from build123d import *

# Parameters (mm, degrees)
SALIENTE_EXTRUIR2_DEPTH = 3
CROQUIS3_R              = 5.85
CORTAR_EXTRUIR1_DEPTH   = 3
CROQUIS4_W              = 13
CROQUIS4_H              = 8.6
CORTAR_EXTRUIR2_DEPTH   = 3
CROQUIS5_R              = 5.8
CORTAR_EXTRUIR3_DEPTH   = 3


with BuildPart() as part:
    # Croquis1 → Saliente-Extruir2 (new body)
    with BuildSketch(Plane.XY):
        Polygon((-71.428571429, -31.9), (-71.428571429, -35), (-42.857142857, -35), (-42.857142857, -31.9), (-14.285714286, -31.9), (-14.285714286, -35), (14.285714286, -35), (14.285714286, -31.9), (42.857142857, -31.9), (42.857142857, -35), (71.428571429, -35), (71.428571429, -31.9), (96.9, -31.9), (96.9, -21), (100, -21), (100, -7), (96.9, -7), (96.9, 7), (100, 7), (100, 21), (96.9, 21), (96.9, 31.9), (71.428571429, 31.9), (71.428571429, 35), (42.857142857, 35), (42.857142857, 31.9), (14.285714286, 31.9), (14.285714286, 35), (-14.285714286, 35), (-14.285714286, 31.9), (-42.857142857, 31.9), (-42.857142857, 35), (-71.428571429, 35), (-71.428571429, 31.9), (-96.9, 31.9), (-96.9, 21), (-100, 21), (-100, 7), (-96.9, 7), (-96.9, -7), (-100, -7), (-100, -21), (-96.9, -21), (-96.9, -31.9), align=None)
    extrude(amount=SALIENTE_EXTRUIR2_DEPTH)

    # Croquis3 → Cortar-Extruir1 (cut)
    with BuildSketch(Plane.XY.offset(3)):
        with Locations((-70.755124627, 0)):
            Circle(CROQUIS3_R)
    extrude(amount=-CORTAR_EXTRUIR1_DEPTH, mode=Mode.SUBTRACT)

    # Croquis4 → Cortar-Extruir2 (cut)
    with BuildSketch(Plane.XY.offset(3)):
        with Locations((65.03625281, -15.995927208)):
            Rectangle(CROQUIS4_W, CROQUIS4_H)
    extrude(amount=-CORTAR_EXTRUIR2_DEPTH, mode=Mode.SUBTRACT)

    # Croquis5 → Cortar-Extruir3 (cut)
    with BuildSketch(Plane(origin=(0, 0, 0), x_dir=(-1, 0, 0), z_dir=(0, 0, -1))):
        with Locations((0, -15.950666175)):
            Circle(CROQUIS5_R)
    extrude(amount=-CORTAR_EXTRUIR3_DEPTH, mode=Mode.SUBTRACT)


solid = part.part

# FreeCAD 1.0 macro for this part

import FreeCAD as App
import Part
import Sketcher
Q = App.Units.Quantity


def add_polygon(sketch, points):
    """Adds a closed chain of lines whose ends are joined by coincident constraints."""
    first, n = sketch.GeometryCount, len(points)
    for a, b in zip(points, points[1:] + points[:1]):
        sketch.addGeometry(Part.LineSegment(App.Vector(*a, 0), App.Vector(*b, 0)), False)
    for i in range(n):
        sketch.addConstraint(Sketcher.Constraint("Coincident", first + i, 2, first + (i + 1) % n, 1))

doc = App.newDocument("Part")
params = doc.addObject("Spreadsheet::Sheet", "Params")
for row, (alias, value) in enumerate([
    ("sketch1_height", "14 mm"),
    ("sketch1_width", "3.1 mm"),
    ("sketch1_height2", "10.9 mm"),
    ("pad1_length", "3 mm"),
    ("sketch2_diameter", "11.7 mm"),
    ("pocket1_length", "3 mm"),
    ("sketch3_width", "13 mm"),
    ("sketch3_height", "8.6 mm"),
    ("pocket2_length", "3 mm"),
    ("sketch4_diameter", "11.6 mm"),
    ("pocket3_length", "3 mm"),
], start=1):
    params.set(f"A{row}", alias)
    params.set(f"B{row}", "=" + value)
    params.setAlias(f"B{row}", alias)

body = doc.addObject("PartDesign::Body", "Body")

sketch1 = doc.addObject("Sketcher::SketchObject", "Sketch")
body.addObject(sketch1)
sketch1.AttachmentSupport = (doc.XY_Plane, [""])
sketch1.MapMode = "FlatFace"
add_polygon(sketch1, [(-71.4, -31.9), (-71.4, -35), (-42.9, -35), (-42.9, -31.9), (-14.3, -31.9), (-14.3, -35), (14.3, -35), (14.3, -31.9), (42.9, -31.9), (42.9, -35), (71.4, -35), (71.4, -31.9), (96.9, -31.9), (96.9, -21), (100, -21), (100, -7), (96.9, -7), (96.9, 7), (100, 7), (100, 21), (96.9, 21), (96.9, 31.9), (71.4, 31.9), (71.4, 35), (42.9, 35), (42.9, 31.9), (14.3, 31.9), (14.3, 35), (-14.3, 35), (-14.3, 31.9), (-42.9, 31.9), (-42.9, 35), (-71.4, 35), (-71.4, 31.9), (-96.9, 31.9), (-96.9, 21), (-100, 21), (-100, 7), (-96.9, 7), (-96.9, -7), (-100, -7), (-100, -21), (-96.9, -21), (-96.9, -31.9)])
sketch1.addConstraint(Sketcher.Constraint("Vertical", 0))
sketch1.addConstraint(Sketcher.Constraint("Horizontal", 1))
sketch1.addConstraint(Sketcher.Constraint("Vertical", 2))
sketch1.addConstraint(Sketcher.Constraint("Horizontal", 3))
sketch1.addConstraint(Sketcher.Constraint("Vertical", 4))
sketch1.addConstraint(Sketcher.Constraint("Horizontal", 5))
sketch1.addConstraint(Sketcher.Constraint("Vertical", 6))
sketch1.addConstraint(Sketcher.Constraint("Horizontal", 7))
sketch1.addConstraint(Sketcher.Constraint("Vertical", 8))
sketch1.addConstraint(Sketcher.Constraint("Horizontal", 9))
sketch1.addConstraint(Sketcher.Constraint("Vertical", 10))
sketch1.addConstraint(Sketcher.Constraint("Horizontal", 11))
sketch1.addConstraint(Sketcher.Constraint("Vertical", 12))
sketch1.addConstraint(Sketcher.Constraint("Horizontal", 13))
sketch1.addConstraint(Sketcher.Constraint("Vertical", 14))
sketch1.addConstraint(Sketcher.Constraint("Horizontal", 15))
sketch1.addConstraint(Sketcher.Constraint("Vertical", 16))
sketch1.addConstraint(Sketcher.Constraint("Horizontal", 17))
sketch1.addConstraint(Sketcher.Constraint("Vertical", 18))
sketch1.addConstraint(Sketcher.Constraint("Horizontal", 19))
sketch1.addConstraint(Sketcher.Constraint("Vertical", 20))
sketch1.addConstraint(Sketcher.Constraint("Horizontal", 21))
sketch1.addConstraint(Sketcher.Constraint("Vertical", 22))
sketch1.addConstraint(Sketcher.Constraint("Horizontal", 23))
sketch1.addConstraint(Sketcher.Constraint("Vertical", 24))
sketch1.addConstraint(Sketcher.Constraint("Horizontal", 25))
sketch1.addConstraint(Sketcher.Constraint("Vertical", 26))
sketch1.addConstraint(Sketcher.Constraint("Horizontal", 27))
sketch1.addConstraint(Sketcher.Constraint("Vertical", 28))
sketch1.addConstraint(Sketcher.Constraint("Horizontal", 29))
sketch1.addConstraint(Sketcher.Constraint("Vertical", 30))
sketch1.addConstraint(Sketcher.Constraint("Horizontal", 31))
sketch1.addConstraint(Sketcher.Constraint("Vertical", 32))
sketch1.addConstraint(Sketcher.Constraint("Horizontal", 33))
sketch1.addConstraint(Sketcher.Constraint("Vertical", 34))
sketch1.addConstraint(Sketcher.Constraint("Horizontal", 35))
sketch1.addConstraint(Sketcher.Constraint("Vertical", 36))
sketch1.addConstraint(Sketcher.Constraint("Horizontal", 37))
sketch1.addConstraint(Sketcher.Constraint("Vertical", 38))
sketch1.addConstraint(Sketcher.Constraint("Horizontal", 39))
sketch1.addConstraint(Sketcher.Constraint("Vertical", 40))
sketch1.addConstraint(Sketcher.Constraint("Horizontal", 41))
sketch1.addConstraint(Sketcher.Constraint("Vertical", 42))
sketch1.addConstraint(Sketcher.Constraint("Horizontal", 43))
sketch1.addConstraint(Sketcher.Constraint("Symmetric", 0, 2, 22, 2, -1, 1))
sketch1.addConstraint(Sketcher.Constraint("Symmetric", 2, 2, 24, 2, -1, 1))
sketch1.addConstraint(Sketcher.Constraint("Symmetric", 4, 2, 26, 2, -1, 1))
sketch1.addConstraint(Sketcher.Constraint("Symmetric", 6, 2, 28, 2, -1, 1))
sketch1.addConstraint(Sketcher.Constraint("Symmetric", 8, 2, 30, 2, -1, 1))
sketch1.addConstraint(Sketcher.Constraint("Symmetric", 10, 2, 32, 2, -1, 1))
sketch1.addConstraint(Sketcher.Constraint("Symmetric", 12, 2, 34, 2, -1, 1))
sketch1.addConstraint(Sketcher.Constraint("Symmetric", 14, 2, 36, 2, -1, 1))
sketch1.addConstraint(Sketcher.Constraint("Symmetric", 16, 2, 38, 2, -1, 1))
sketch1.addConstraint(Sketcher.Constraint("Symmetric", 18, 2, 40, 2, -1, 1))
sketch1.addConstraint(Sketcher.Constraint("Symmetric", 20, 2, 42, 2, -1, 1))
sketch1.addConstraint(Sketcher.Constraint("Symmetric", 3, 2, 6, 2, -2))
sketch1.addConstraint(Sketcher.Constraint("Symmetric", 1, 2, 8, 2, -2))
sketch1.addConstraint(Sketcher.Constraint("Symmetric", 21, 2, 32, 2, -2))
sketch1.addConstraint(Sketcher.Constraint("Symmetric", 19, 2, 34, 2, -2))
sketch1.addConstraint(Sketcher.Constraint("Symmetric", 17, 2, 36, 2, -2))
sketch1.addConstraint(Sketcher.Constraint("Horizontal", 1, 2, 4, 2))
sketch1.addConstraint(Sketcher.Constraint("Horizontal", 7, 2, 10, 2))
sketch1.addConstraint(Sketcher.Constraint("Vertical", 12, 2, 15, 2))
sketch1.addConstraint(Sketcher.Constraint("Equal", 1, 3))
sketch1.addConstraint(Sketcher.Constraint("Equal", 3, 5))
sketch1.addConstraint(Sketcher.Constraint("Equal", 41, 0))
sketch1.addConstraint(Sketcher.Constraint("Equal", 14, 16))
sketch1.addConstraint(Sketcher.Constraint("DistanceY", 14, 1, 14, 2, Q("14 mm")))
sketch1.addConstraint(Sketcher.Constraint("DistanceX", 13, 1, 13, 2, Q("3.1 mm")))
sketch1.addConstraint(Sketcher.Constraint("DistanceY", 12, 1, 12, 2, Q("10.9 mm")))
sketch1.addConstraint(Sketcher.Constraint("DistanceX", -1, 1, 13, 2, Q("100 mm")))
sketch1.addConstraint(Sketcher.Constraint("DistanceX", 1, 1, 1, 2, Q("28.571429 mm")))
sketch1.setExpression("Constraints[111]", "Params.sketch1_height")
sketch1.setExpression("Constraints[112]", "Params.sketch1_width")
sketch1.setExpression("Constraints[113]", "Params.sketch1_height2")
pad1 = doc.addObject("PartDesign::Pad", "Pad")
body.addObject(pad1)
pad1.Profile = sketch1
pad1.setExpression("Length", "Params.pad1_length")

sketch2 = doc.addObject("Sketcher::SketchObject", "Sketch001")
body.addObject(sketch2)
sketch2.AttachmentSupport = (doc.XY_Plane, [""])
sketch2.MapMode = "FlatFace"
sketch2.AttachmentOffset = App.Placement(App.Vector(0, 0, 3), App.Rotation())
sketch2.addGeometry(Part.Circle(App.Vector(-71, 0, 0), App.Vector(0, 0, 1), 6), False)
sketch2.addConstraint(Sketcher.Constraint("PointOnObject", 0, 3, -1))
sketch2.addConstraint(Sketcher.Constraint("Diameter", 0, Q("11.7 mm")))
sketch2.addConstraint(Sketcher.Constraint("DistanceX", 0, 3, -1, 1, Q("70.755125 mm")))
sketch2.setExpression("Constraints[1]", "Params.sketch2_diameter")
pocket1 = doc.addObject("PartDesign::Pocket", "Pocket")
body.addObject(pocket1)
pocket1.Profile = sketch2
pocket1.setExpression("Length", "Params.pocket1_length")

sketch3 = doc.addObject("Sketcher::SketchObject", "Sketch002")
body.addObject(sketch3)
sketch3.AttachmentSupport = (doc.XY_Plane, [""])
sketch3.MapMode = "FlatFace"
sketch3.AttachmentOffset = App.Placement(App.Vector(0, 0, 3), App.Rotation())
add_polygon(sketch3, [(59, -12), (59, -20), (72, -20), (72, -12)])
sketch3.addConstraint(Sketcher.Constraint("Vertical", 0))
sketch3.addConstraint(Sketcher.Constraint("Horizontal", 1))
sketch3.addConstraint(Sketcher.Constraint("Vertical", 2))
sketch3.addConstraint(Sketcher.Constraint("Horizontal", 3))
sketch3.addConstraint(Sketcher.Constraint("DistanceX", 1, 1, 1, 2, Q("13 mm")))
sketch3.addConstraint(Sketcher.Constraint("DistanceY", 0, 2, 0, 1, Q("8.6 mm")))
sketch3.addConstraint(Sketcher.Constraint("DistanceX", -1, 1, 0, 2, Q("58.536253 mm")))
sketch3.addConstraint(Sketcher.Constraint("DistanceY", 0, 2, -1, 1, Q("20.295927 mm")))
sketch3.setExpression("Constraints[8]", "Params.sketch3_width")
sketch3.setExpression("Constraints[9]", "Params.sketch3_height")
pocket2 = doc.addObject("PartDesign::Pocket", "Pocket001")
body.addObject(pocket2)
pocket2.Profile = sketch3
pocket2.setExpression("Length", "Params.pocket2_length")

sketch4 = doc.addObject("Sketcher::SketchObject", "Sketch003")
body.addObject(sketch4)
sketch4.AttachmentSupport = (doc.XY_Plane, [""])
sketch4.MapMode = "FlatFace"
sketch4.addGeometry(Part.Circle(App.Vector(0, -16, 0), App.Vector(0, 0, 1), 6), False)
sketch4.addConstraint(Sketcher.Constraint("PointOnObject", 0, 3, -2))
sketch4.addConstraint(Sketcher.Constraint("Diameter", 0, Q("11.6 mm")))
sketch4.addConstraint(Sketcher.Constraint("DistanceY", 0, 3, -1, 1, Q("15.950666 mm")))
sketch4.setExpression("Constraints[1]", "Params.sketch4_diameter")
pocket3 = doc.addObject("PartDesign::Pocket", "Pocket002")
body.addObject(pocket3)
pocket3.Profile = sketch4
pocket3.setExpression("Length", "Params.pocket3_length")
pocket3.Reversed = True

doc.recompute()
